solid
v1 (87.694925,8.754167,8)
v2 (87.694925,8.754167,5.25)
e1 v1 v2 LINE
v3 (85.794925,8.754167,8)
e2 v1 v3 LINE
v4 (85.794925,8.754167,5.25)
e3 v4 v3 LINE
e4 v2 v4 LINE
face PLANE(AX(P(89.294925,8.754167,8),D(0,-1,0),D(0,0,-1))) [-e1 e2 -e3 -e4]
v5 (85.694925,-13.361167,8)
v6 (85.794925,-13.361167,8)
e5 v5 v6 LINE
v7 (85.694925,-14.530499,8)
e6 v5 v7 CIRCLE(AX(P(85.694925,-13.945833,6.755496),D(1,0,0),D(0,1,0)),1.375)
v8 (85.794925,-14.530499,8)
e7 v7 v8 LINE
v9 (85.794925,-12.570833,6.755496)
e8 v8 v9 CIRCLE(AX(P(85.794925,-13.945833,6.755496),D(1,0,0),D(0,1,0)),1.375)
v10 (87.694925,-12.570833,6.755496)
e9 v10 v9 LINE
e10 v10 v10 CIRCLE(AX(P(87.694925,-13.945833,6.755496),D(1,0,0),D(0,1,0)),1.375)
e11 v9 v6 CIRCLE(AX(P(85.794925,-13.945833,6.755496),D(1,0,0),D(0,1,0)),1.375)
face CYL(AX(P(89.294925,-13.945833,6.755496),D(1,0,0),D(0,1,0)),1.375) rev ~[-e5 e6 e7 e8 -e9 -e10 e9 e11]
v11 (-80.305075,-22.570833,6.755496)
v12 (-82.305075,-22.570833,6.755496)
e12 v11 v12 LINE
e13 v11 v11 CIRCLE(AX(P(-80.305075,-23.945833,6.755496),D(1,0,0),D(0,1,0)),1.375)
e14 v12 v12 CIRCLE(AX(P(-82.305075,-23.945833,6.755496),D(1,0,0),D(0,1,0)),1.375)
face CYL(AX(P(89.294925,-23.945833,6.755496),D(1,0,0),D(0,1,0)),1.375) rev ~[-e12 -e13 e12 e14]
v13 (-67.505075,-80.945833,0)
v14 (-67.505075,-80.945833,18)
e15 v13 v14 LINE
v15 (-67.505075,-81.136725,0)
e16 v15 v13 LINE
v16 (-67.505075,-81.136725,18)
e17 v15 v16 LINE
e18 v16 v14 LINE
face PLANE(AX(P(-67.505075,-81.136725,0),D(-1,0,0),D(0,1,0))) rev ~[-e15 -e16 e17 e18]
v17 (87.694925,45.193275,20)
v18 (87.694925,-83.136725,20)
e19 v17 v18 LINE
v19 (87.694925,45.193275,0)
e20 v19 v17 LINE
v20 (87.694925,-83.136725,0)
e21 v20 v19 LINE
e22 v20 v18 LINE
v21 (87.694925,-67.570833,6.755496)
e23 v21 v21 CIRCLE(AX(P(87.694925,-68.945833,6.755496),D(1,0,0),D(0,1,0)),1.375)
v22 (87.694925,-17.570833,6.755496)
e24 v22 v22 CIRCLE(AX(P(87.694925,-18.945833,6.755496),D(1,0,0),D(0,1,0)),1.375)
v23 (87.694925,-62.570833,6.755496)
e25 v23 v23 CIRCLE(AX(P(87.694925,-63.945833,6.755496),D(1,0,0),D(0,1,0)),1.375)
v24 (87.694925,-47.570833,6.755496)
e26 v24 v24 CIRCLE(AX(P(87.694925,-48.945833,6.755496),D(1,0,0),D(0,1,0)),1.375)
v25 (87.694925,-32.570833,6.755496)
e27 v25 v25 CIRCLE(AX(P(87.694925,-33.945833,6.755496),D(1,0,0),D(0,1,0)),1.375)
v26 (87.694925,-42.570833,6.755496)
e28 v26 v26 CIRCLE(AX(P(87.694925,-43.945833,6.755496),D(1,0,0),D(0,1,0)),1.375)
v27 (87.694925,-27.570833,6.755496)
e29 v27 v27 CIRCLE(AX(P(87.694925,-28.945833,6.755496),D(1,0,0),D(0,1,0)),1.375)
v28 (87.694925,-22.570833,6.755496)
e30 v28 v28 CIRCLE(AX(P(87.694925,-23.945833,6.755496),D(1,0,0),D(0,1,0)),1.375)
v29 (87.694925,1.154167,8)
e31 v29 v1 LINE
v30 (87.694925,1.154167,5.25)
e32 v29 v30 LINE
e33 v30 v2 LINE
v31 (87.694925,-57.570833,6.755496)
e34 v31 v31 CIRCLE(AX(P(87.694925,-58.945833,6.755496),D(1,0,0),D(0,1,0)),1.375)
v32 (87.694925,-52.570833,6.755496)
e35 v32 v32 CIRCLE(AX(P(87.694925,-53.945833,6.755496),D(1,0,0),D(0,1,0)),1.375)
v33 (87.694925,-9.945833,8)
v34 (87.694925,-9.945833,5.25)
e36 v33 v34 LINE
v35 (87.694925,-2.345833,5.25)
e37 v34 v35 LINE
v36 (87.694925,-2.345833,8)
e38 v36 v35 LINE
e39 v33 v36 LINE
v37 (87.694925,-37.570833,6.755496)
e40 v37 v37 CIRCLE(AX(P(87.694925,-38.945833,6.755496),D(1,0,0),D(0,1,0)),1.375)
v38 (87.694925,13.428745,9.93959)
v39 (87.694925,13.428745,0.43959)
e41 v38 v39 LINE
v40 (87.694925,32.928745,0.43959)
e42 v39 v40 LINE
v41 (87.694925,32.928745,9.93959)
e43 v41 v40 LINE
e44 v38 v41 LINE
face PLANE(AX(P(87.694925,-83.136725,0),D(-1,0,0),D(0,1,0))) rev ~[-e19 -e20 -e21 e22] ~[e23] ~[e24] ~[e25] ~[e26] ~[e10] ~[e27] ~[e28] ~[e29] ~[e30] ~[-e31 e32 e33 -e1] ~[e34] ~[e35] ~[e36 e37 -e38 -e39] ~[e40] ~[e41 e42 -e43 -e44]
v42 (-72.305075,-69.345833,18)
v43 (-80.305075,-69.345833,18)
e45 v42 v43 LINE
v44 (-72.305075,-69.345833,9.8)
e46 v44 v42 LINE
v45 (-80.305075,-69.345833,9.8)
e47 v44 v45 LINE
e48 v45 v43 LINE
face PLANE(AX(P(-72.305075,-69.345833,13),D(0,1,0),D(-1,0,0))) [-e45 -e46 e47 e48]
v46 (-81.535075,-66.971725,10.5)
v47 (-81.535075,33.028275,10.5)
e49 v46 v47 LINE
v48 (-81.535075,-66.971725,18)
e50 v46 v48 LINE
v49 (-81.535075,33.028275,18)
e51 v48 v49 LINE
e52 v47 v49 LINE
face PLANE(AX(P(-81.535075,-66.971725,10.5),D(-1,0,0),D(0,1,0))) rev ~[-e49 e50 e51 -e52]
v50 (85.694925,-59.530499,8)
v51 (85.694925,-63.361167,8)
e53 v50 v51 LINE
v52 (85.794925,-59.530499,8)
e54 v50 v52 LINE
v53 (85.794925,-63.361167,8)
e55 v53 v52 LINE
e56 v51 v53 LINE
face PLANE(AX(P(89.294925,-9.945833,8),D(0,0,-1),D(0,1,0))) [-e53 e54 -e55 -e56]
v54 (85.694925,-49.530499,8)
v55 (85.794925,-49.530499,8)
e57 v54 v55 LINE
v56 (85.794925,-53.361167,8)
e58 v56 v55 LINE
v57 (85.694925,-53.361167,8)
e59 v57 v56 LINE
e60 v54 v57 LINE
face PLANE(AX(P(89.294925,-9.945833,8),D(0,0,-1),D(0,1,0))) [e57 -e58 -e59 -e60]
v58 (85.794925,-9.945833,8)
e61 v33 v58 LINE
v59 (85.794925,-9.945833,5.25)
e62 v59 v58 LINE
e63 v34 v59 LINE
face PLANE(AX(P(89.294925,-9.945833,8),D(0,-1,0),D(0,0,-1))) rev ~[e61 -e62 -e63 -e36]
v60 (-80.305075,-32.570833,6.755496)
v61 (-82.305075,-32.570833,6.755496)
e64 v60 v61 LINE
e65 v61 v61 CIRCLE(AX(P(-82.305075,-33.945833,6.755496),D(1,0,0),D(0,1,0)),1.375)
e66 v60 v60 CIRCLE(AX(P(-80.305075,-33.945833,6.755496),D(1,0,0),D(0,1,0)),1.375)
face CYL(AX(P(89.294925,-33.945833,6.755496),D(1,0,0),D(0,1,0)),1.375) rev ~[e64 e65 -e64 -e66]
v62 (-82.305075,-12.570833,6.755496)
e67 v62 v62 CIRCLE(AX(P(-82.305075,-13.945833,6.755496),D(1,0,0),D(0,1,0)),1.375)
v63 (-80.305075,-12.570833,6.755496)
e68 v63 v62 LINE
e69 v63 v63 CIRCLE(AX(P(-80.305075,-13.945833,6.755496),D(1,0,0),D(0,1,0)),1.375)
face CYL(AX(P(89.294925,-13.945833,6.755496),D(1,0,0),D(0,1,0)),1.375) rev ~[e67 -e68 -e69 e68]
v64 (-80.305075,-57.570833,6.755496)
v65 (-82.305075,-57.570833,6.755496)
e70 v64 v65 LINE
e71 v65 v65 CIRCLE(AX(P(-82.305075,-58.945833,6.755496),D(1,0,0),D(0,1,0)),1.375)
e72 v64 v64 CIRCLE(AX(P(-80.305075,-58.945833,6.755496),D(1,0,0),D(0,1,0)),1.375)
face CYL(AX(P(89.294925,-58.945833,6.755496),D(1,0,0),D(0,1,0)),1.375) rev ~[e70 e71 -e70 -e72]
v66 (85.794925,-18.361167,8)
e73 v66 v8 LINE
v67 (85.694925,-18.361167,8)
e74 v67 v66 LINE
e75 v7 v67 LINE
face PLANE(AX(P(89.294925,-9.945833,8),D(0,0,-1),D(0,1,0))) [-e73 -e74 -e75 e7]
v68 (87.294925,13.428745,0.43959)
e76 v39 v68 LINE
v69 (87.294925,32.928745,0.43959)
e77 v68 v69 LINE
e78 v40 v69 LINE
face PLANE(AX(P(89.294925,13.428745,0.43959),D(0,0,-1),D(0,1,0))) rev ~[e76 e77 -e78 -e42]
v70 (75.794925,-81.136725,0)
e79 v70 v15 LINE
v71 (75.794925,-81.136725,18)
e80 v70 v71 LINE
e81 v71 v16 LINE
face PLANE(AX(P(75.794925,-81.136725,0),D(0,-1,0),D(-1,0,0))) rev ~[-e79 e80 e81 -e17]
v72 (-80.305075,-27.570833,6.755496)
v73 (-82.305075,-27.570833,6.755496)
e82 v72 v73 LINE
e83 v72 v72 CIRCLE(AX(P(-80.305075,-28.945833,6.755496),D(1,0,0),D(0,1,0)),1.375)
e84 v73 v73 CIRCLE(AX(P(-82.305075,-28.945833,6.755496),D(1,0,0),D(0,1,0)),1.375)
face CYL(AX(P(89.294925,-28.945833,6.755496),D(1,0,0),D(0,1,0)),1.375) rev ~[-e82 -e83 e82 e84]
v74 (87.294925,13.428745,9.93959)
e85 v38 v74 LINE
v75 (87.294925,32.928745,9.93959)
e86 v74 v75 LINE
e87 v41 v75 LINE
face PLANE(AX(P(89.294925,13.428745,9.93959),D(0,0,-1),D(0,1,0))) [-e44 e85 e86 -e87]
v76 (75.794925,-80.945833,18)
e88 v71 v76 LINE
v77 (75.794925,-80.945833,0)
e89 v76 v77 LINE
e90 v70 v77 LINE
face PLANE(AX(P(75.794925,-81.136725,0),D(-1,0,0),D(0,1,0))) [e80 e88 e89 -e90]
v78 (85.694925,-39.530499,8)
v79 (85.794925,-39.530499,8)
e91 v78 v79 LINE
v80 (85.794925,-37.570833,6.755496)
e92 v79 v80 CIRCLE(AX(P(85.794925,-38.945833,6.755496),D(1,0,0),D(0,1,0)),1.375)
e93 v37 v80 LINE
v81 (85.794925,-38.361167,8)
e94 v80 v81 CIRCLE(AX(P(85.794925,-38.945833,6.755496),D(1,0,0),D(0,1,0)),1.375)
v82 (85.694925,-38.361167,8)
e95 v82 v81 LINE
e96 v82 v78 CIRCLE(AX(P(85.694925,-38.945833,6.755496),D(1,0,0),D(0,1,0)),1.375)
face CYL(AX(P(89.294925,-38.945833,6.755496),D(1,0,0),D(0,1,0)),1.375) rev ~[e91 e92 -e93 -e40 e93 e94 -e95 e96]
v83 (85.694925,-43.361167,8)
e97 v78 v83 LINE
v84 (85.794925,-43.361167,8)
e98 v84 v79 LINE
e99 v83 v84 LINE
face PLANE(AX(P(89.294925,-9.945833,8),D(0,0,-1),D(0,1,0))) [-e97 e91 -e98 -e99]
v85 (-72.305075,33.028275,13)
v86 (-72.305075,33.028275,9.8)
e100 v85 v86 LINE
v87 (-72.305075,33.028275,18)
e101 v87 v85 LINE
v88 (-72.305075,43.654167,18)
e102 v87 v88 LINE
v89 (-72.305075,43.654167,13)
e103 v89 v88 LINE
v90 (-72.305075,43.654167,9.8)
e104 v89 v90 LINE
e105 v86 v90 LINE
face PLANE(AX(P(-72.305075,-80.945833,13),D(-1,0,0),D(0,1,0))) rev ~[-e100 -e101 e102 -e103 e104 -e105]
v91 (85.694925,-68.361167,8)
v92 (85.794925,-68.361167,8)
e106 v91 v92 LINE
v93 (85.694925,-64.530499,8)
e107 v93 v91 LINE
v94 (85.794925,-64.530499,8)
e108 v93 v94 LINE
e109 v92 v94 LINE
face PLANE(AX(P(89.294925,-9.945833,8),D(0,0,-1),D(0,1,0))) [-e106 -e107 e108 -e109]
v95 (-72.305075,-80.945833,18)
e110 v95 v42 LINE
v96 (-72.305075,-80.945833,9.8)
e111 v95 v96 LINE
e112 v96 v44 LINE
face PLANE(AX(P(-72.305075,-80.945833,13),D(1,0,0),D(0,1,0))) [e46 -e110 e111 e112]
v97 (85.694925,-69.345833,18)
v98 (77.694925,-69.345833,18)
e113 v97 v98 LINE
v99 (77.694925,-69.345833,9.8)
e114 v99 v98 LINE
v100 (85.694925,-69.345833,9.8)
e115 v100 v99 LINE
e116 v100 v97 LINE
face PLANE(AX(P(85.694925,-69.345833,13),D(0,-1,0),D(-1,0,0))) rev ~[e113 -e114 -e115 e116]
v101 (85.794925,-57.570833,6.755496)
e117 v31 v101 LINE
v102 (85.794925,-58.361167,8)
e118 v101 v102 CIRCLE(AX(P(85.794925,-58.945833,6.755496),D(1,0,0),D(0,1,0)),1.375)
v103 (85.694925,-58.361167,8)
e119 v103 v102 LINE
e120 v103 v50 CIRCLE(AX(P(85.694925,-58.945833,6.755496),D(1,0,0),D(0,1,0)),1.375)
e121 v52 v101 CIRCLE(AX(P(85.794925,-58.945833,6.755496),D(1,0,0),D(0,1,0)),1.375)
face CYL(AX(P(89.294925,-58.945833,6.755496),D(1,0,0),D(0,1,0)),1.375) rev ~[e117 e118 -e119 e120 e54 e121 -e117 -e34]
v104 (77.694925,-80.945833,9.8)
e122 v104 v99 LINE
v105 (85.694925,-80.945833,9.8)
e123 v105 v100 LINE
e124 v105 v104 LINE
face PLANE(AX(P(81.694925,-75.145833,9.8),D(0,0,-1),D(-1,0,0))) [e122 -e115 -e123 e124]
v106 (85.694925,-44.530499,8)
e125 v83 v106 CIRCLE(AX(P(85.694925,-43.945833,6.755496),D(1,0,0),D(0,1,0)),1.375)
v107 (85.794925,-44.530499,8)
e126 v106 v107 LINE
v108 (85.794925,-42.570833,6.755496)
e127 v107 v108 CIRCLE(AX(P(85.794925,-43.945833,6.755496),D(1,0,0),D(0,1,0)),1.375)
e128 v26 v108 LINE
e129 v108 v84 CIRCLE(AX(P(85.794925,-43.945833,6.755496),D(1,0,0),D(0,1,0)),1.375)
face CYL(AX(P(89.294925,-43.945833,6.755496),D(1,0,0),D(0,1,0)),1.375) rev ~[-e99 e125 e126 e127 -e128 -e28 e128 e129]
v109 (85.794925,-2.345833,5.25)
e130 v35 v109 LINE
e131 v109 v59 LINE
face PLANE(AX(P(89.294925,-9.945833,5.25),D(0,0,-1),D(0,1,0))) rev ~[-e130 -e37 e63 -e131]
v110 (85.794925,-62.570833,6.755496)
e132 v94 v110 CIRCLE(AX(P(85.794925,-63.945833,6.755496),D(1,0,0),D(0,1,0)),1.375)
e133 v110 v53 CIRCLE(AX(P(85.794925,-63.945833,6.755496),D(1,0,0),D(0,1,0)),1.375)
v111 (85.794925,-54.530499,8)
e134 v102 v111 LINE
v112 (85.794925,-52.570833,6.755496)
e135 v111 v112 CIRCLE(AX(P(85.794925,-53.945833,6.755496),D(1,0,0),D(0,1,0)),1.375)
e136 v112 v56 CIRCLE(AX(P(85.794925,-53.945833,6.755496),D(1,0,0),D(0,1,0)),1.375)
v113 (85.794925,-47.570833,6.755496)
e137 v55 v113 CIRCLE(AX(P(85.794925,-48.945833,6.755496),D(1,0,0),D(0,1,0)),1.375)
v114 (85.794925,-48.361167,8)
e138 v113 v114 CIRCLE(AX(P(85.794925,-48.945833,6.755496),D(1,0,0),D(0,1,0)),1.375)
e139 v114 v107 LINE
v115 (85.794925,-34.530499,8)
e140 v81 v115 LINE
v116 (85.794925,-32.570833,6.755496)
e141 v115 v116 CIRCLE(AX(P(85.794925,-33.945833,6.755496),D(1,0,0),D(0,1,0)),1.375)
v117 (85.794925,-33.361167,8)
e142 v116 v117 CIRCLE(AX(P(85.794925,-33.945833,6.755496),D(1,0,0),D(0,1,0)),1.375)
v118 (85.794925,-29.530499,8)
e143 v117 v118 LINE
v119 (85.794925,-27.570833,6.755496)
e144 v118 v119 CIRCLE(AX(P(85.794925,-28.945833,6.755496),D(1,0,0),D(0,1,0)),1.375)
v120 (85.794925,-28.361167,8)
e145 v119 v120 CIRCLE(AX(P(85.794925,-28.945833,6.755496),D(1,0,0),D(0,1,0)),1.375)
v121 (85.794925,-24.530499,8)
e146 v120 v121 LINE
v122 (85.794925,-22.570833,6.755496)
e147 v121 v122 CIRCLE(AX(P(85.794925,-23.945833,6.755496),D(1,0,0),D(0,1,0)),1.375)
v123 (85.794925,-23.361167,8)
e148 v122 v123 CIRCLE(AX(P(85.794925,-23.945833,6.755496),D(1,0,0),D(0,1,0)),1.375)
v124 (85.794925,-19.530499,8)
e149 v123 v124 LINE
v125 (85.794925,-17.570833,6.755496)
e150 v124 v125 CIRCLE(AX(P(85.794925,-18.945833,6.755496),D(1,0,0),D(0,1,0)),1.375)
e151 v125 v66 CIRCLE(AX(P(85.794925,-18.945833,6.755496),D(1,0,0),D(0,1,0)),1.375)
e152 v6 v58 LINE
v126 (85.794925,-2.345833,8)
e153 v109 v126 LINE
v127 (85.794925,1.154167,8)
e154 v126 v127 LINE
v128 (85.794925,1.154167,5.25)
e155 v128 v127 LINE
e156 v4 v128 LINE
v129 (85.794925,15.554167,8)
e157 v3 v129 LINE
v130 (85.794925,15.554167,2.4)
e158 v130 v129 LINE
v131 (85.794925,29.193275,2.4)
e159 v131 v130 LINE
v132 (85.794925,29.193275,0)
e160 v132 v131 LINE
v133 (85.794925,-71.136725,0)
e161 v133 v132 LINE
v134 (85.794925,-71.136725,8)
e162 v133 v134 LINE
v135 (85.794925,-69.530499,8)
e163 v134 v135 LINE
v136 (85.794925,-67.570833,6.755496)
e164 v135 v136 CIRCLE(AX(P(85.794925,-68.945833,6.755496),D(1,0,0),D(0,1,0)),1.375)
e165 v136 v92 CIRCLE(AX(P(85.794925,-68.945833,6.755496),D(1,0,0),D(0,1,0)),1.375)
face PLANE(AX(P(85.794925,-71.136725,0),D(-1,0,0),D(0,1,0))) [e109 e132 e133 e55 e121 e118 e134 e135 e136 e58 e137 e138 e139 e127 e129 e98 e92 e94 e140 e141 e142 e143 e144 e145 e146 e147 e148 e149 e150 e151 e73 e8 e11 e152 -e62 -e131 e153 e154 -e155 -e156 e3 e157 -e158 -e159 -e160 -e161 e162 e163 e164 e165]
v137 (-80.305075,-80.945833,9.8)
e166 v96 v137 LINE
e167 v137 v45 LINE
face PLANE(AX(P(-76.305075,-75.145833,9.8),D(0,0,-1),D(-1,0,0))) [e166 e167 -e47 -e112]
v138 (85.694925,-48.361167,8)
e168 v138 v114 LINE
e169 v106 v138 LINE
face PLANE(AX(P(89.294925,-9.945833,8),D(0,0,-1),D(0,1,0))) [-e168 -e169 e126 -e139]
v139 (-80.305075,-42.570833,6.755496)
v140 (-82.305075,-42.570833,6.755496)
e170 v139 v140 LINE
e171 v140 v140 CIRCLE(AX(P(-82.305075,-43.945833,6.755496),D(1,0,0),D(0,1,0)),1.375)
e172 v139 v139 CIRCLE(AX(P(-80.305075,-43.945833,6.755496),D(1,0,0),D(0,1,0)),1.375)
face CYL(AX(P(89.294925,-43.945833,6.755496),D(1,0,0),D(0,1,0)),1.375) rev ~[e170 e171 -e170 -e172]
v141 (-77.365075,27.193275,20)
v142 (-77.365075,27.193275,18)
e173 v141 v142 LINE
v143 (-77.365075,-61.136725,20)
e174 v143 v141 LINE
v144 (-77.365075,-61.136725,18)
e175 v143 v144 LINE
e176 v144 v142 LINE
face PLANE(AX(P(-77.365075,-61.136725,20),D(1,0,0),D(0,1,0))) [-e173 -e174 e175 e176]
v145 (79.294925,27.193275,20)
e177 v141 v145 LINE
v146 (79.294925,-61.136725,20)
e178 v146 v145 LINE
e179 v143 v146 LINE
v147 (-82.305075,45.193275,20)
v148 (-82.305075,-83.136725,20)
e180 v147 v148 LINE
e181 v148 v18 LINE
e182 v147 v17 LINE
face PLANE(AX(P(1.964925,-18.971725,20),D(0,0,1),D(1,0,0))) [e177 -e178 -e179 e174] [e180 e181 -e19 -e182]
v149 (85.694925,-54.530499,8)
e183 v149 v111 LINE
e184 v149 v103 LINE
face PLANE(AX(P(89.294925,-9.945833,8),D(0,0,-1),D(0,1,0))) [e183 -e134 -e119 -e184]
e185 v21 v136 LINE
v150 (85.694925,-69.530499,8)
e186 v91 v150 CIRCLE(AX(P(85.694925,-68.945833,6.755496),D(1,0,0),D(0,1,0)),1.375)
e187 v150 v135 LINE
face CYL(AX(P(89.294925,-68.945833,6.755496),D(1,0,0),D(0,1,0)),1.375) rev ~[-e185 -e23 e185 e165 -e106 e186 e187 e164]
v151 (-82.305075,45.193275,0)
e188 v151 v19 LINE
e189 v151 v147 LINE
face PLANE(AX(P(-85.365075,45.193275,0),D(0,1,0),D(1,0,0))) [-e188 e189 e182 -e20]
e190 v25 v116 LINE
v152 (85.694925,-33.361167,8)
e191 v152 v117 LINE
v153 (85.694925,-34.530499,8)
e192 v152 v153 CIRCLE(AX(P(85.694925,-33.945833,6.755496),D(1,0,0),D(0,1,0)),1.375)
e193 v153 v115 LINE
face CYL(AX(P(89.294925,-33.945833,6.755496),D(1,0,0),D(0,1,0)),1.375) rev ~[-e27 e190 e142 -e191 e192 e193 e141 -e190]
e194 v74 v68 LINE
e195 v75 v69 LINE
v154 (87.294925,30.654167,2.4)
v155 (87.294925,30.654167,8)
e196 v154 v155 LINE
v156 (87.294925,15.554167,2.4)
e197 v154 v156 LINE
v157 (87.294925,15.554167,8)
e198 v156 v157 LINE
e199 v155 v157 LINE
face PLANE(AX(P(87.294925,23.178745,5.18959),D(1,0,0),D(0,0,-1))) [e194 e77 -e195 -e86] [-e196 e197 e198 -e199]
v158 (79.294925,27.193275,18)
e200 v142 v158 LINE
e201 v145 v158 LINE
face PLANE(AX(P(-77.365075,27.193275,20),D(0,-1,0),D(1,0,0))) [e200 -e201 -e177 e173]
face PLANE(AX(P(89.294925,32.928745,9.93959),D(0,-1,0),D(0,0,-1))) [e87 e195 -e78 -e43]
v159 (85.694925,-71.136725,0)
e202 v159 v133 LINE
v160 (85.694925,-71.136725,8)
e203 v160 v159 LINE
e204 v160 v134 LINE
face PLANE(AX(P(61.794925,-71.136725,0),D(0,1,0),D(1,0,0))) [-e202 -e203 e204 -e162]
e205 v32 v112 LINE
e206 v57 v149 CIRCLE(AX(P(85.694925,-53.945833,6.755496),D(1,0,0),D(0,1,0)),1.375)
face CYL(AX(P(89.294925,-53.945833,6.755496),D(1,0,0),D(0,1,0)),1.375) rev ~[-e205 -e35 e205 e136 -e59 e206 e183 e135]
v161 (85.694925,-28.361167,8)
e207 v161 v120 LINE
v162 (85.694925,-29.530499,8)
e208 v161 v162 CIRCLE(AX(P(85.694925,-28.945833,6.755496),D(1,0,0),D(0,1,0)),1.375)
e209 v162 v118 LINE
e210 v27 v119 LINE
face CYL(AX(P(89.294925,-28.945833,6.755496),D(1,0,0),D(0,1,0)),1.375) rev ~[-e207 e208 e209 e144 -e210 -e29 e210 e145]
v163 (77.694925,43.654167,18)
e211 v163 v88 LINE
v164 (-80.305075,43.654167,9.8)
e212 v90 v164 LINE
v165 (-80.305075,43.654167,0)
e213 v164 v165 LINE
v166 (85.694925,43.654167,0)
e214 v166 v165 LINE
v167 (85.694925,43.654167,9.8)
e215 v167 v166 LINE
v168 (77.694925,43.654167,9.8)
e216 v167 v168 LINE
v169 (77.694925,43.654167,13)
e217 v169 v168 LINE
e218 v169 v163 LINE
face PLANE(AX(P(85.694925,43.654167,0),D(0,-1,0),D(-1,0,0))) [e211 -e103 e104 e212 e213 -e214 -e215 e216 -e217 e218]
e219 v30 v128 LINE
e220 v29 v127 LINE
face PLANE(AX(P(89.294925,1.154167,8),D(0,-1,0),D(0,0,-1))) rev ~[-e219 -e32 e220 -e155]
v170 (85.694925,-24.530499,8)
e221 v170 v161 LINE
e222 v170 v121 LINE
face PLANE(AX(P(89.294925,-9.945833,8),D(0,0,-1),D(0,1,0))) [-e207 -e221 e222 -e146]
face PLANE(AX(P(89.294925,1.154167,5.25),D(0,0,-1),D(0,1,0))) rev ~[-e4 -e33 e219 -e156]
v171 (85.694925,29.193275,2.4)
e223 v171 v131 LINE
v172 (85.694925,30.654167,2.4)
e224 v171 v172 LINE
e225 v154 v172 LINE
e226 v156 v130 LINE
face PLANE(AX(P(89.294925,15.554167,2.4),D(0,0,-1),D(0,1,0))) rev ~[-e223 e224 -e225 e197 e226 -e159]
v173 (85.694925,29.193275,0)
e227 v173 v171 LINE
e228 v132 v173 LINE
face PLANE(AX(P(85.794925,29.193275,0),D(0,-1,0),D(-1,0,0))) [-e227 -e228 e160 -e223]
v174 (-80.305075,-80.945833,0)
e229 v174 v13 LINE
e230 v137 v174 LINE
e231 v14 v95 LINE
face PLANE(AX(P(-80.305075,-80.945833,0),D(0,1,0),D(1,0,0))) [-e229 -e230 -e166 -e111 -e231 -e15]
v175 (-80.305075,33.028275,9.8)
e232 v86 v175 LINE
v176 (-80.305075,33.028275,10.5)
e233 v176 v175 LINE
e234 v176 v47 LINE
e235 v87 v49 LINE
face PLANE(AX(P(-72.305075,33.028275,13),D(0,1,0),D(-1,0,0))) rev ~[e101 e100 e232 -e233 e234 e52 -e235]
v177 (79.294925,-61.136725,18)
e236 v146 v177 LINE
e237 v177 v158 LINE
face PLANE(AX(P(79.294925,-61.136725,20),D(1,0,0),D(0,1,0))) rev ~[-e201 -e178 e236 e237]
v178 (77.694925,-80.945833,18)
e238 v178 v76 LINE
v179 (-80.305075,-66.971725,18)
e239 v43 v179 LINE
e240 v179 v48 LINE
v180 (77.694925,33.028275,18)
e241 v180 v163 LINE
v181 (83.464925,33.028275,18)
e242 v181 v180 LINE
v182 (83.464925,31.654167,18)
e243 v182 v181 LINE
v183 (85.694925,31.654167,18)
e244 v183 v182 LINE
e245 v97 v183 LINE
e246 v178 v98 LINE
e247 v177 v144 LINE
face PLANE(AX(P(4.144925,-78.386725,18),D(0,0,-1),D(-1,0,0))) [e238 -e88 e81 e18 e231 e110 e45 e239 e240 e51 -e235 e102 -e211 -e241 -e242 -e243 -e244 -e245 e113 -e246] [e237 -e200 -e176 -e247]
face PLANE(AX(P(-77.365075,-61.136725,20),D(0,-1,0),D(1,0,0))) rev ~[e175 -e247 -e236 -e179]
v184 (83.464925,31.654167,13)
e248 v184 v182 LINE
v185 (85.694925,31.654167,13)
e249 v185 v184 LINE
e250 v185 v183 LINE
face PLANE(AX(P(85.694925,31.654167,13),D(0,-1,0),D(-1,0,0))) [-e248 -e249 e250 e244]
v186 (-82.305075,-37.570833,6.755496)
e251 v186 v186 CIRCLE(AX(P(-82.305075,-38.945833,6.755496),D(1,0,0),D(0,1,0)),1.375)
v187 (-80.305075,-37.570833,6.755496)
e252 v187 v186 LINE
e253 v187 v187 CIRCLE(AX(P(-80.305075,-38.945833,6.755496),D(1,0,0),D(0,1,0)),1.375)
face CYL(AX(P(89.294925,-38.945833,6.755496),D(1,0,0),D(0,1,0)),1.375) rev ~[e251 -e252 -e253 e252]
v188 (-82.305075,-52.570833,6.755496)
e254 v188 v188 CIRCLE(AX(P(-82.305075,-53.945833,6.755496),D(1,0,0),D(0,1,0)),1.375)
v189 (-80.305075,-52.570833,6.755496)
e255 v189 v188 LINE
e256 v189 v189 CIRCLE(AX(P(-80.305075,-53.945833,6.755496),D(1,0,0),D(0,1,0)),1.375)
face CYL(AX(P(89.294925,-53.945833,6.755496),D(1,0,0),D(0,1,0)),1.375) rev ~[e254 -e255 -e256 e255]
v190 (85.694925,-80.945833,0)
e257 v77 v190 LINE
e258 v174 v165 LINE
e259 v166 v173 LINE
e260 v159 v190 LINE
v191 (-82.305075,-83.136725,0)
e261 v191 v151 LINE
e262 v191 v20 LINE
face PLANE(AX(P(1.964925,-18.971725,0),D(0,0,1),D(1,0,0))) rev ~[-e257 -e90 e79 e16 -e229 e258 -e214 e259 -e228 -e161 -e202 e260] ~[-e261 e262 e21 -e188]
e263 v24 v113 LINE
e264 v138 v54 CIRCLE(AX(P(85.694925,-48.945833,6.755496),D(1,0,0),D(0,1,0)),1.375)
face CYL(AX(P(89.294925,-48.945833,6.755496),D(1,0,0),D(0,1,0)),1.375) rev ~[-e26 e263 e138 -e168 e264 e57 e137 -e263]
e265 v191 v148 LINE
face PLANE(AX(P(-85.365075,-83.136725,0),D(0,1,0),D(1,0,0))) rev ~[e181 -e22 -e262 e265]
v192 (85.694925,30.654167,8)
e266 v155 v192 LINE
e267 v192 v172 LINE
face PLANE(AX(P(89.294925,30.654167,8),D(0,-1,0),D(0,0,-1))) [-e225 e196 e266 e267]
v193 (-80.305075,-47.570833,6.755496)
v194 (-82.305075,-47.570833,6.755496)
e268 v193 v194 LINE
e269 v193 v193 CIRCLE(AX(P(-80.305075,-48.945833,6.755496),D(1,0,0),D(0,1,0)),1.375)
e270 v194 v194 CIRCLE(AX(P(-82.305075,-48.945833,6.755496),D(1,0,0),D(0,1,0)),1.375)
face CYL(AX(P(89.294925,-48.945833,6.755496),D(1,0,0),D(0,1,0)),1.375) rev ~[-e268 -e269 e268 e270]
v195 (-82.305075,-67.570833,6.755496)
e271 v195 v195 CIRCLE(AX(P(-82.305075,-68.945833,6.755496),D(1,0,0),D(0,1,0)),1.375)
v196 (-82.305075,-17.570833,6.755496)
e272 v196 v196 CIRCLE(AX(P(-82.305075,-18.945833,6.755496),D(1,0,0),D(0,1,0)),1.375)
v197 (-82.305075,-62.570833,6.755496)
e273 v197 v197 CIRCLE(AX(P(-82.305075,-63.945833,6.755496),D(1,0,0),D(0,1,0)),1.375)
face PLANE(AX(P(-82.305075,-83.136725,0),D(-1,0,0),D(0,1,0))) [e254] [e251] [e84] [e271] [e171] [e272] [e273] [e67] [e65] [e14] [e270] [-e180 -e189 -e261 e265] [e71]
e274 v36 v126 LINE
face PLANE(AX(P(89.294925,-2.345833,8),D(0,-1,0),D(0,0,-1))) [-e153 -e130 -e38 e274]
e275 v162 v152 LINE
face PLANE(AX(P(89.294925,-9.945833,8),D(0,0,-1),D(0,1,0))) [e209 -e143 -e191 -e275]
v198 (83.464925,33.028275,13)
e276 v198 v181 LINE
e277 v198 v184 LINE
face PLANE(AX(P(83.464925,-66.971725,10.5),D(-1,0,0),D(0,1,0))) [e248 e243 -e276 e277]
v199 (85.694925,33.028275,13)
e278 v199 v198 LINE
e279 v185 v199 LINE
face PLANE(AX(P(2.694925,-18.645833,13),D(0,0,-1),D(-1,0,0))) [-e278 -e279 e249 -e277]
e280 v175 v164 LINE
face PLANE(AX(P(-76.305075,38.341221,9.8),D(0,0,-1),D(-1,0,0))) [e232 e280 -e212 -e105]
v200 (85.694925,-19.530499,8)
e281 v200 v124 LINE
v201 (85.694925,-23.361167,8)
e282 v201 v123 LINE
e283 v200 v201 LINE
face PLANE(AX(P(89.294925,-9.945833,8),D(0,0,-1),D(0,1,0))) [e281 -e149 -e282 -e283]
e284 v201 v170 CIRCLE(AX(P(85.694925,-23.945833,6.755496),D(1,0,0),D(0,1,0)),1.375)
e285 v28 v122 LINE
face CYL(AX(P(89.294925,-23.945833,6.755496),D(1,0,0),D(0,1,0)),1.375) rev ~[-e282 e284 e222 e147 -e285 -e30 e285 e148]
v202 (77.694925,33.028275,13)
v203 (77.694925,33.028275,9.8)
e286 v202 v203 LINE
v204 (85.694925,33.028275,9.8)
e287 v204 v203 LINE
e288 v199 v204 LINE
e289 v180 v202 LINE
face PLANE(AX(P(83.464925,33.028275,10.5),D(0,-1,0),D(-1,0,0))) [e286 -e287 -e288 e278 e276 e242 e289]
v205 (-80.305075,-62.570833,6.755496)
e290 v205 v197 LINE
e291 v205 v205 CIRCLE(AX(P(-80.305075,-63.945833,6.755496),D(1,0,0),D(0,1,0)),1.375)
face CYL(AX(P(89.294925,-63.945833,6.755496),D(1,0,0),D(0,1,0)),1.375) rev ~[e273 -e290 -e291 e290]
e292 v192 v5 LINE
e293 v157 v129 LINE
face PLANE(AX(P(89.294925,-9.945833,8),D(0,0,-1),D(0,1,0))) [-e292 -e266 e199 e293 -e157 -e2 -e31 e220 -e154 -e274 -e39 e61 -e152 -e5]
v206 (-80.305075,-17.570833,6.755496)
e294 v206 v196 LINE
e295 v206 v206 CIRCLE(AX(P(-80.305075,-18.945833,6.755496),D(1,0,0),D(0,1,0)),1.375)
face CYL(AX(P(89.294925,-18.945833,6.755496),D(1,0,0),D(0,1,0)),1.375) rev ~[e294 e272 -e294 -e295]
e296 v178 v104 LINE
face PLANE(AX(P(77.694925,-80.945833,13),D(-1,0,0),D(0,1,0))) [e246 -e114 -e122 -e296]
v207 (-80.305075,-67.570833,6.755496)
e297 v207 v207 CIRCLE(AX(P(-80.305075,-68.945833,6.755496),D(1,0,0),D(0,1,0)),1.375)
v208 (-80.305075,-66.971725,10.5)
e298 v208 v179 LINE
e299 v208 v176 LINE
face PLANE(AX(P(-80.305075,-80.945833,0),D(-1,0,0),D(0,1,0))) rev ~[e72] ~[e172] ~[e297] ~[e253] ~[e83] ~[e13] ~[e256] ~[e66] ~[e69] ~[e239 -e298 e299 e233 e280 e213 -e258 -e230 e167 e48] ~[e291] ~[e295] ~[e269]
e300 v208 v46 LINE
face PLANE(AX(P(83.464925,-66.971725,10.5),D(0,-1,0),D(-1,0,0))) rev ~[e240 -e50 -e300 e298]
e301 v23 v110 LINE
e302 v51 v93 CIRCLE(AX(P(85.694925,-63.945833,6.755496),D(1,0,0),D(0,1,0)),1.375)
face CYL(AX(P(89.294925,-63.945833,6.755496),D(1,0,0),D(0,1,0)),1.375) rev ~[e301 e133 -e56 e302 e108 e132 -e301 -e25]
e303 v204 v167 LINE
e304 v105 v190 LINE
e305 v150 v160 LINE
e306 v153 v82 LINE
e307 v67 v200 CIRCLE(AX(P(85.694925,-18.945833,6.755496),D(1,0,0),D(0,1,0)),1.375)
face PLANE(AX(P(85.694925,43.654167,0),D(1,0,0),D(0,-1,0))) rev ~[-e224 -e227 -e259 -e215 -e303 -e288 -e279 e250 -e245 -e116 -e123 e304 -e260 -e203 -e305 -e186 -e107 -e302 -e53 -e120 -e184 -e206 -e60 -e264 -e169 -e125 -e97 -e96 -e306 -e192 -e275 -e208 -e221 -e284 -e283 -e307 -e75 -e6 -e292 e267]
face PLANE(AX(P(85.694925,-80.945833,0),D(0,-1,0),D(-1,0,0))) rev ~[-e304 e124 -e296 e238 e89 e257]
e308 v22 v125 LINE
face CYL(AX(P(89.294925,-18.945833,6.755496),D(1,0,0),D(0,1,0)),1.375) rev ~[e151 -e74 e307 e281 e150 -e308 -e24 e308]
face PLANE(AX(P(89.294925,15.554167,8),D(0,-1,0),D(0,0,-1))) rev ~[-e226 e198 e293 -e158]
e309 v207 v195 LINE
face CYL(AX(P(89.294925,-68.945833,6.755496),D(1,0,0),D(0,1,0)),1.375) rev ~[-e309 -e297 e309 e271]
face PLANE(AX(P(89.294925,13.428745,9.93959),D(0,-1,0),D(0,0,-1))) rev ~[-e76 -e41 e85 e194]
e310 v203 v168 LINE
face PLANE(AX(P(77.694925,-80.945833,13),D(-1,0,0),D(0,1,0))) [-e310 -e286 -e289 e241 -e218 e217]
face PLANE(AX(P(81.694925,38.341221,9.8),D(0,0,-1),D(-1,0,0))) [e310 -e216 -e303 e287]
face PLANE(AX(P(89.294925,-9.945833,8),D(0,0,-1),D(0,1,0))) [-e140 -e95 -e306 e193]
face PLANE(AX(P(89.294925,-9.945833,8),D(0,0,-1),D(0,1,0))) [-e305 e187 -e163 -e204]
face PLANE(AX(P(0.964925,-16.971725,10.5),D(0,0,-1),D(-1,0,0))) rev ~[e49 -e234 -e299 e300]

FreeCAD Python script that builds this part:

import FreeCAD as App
import Part
import Sketcher
Q = App.Units.Quantity


def add_polygon(sketch, points):
    """Adds a closed chain of lines whose ends are joined by coincident constraints."""
    first, n = sketch.GeometryCount, len(points)
    for a, b in zip(points, points[1:] + points[:1]):
        sketch.addGeometry(Part.LineSegment(App.Vector(*a, 0), App.Vector(*b, 0)), False)
    for i in range(n):
        sketch.addConstraint(Sketcher.Constraint("Coincident", first + i, 2, first + (i + 1) % n, 1))

doc = App.newDocument("Part")
body = doc.addObject("PartDesign::Body", "Body")

sketch1 = body.newObject("Sketcher::SketchObject", "Sketch")
sketch1.AttachmentSupport = (doc.getObject("XY_Plane"), [""])
sketch1.MapMode = "FlatFace"
add_polygon(sketch1, [(-85, 45), (-85, -83), (89, -83), (89, 45)])
sketch1.addConstraint([
    Sketcher.Constraint("Vertical", 0),
    Sketcher.Constraint("Horizontal", 1),
    Sketcher.Constraint("Vertical", 2),
    Sketcher.Constraint("Horizontal", 3),
    Sketcher.Constraint("DistanceX", 1, 1, 1, 2, Q("174.66 mm")),
    Sketcher.Constraint("DistanceY", 0, 2, 0, 1, Q("128.33 mm")),
    Sketcher.Constraint("DistanceX", 0, 2, -1, 1, Q("85.365075 mm")),
    Sketcher.Constraint("DistanceY", 0, 2, -1, 1, Q("83.136725 mm")),
])
pad1 = body.newObject("PartDesign::Pad", "Pad")
pad1.Profile = sketch1
pad1.Length = 20

sketch2 = body.newObject("Sketcher::SketchObject", "Sketch001")
sketch2.AttachmentSupport = (doc.getObject("XY_Plane"), [""])
sketch2.MapMode = "FlatFace"
add_polygon(sketch2, [(-78.7, 29.2), (85.8, 29.2), (85.8, -71.1), (61.8, -71.1), (61.8, -74.1), (16.8, -74.1), (16.8, -71.1), (-78.7, -71.1)])
sketch2.addConstraint([
    Sketcher.Constraint("Horizontal", 0),
    Sketcher.Constraint("Vertical", 1),
    Sketcher.Constraint("Horizontal", 2),
    Sketcher.Constraint("Vertical", 3),
    Sketcher.Constraint("Horizontal", 4),
    Sketcher.Constraint("Vertical", 5),
    Sketcher.Constraint("Horizontal", 6),
    Sketcher.Constraint("Vertical", 7),
    Sketcher.Constraint("Horizontal", 2, 2, 5, 2),
    Sketcher.Constraint("DistanceX", 2, 2, 2, 1, Q("24 mm")),
    Sketcher.Constraint("DistanceX", 4, 2, 4, 1, Q("45 mm")),
    Sketcher.Constraint("DistanceY", 3, 2, 3, 1, Q("3 mm")),
    Sketcher.Constraint("DistanceX", 0, 1, 0, 2, Q("164.51 mm")),
    Sketcher.Constraint("DistanceY", 1, 2, 1, 1, Q("100.33 mm")),
    Sketcher.Constraint("DistanceX", -1, 1, 0, 2, Q("85.794925 mm")),
    Sketcher.Constraint("DistanceY", -1, 1, 0, 2, Q("29.193275 mm")),
])
pocket1 = body.newObject("PartDesign::Pocket", "Pocket")
pocket1.Profile = sketch2
pocket1.Length = 8
pocket1.Reversed = True

sketch3 = body.newObject("Sketcher::SketchObject", "Sketch002")
sketch3.AttachmentSupport = (doc.getObject("XY_Plane"), [""])
sketch3.MapMode = "FlatFace"
add_polygon(sketch3, [(-72, 35), (77, 35), (77, 44), (86, 44), (86, -81), (78, -81), (78, -72), (-70, -72), (-70, -81), (-80, -81), (-80, 44), (-72, 44)])
sketch3.addConstraint([
    Sketcher.Constraint("Horizontal", 0),
    Sketcher.Constraint("Vertical", 1),
    Sketcher.Constraint("Horizontal", 2),
    Sketcher.Constraint("Vertical", 3),
    Sketcher.Constraint("Horizontal", 4),
    Sketcher.Constraint("Vertical", 5),
    Sketcher.Constraint("Horizontal", 6),
    Sketcher.Constraint("Vertical", 7),
    Sketcher.Constraint("Horizontal", 8),
    Sketcher.Constraint("Vertical", 9),
    Sketcher.Constraint("Horizontal", 10),
    Sketcher.Constraint("Vertical", 11),
    Sketcher.Constraint("Horizontal", 4, 2, 7, 2),
    Sketcher.Constraint("Horizontal", 2, 2, 9, 2),
    Sketcher.Constraint("Equal", 2, 10),
    Sketcher.Constraint("Equal", 10, 1),
    Sketcher.Constraint("Equal", 1, 5),
    Sketcher.Constraint("DistanceX", 0, 1, 0, 2, Q("148.4 mm")),
    Sketcher.Constraint("DistanceX", 2, 1, 2, 2, Q("8.8 mm")),
    Sketcher.Constraint("DistanceX", 4, 2, 4, 1, Q("7.9 mm")),
    Sketcher.Constraint("DistanceX", 6, 2, 6, 1, Q("147.3 mm")),
    Sketcher.Constraint("DistanceY", 3, 2, 3, 1, Q("124.6 mm")),
    Sketcher.Constraint("DistanceX", -1, 1, 0, 2, Q("76.894925 mm")),
    Sketcher.Constraint("DistanceY", -1, 1, 0, 2, Q("34.854167 mm")),
])
pocket2 = body.newObject("PartDesign::Pocket", "Pocket001")
pocket2.Profile = sketch3
pocket2.Length = 10.5
pocket2.Reversed = True

sketch4 = body.newObject("Sketcher::SketchObject", "Sketch003")
sketch4.AttachmentSupport = (doc.getObject("YZ_Plane"), [""])
sketch4.MapMode = "FlatFace"
sketch4.AttachmentOffset = App.Placement(App.Vector(0, 0, 89.294925), App.Rotation())
add_polygon(sketch4, [(30.7, 8), (15.6, 8), (15.6, 2.4), (30.7, 2.4)])
add_polygon(sketch4, [(8.8, 8), (1.2, 8), (1.2, 5.2), (8.8, 5.2)])
add_polygon(sketch4, [(-2.3, 8), (-9.9, 8), (-9.9, 5.2), (-2.3, 5.2)])
sketch4.addConstraint([
    Sketcher.Constraint("Horizontal", 0),
    Sketcher.Constraint("Vertical", 1),
    Sketcher.Constraint("Horizontal", 2),
    Sketcher.Constraint("Vertical", 3),
    Sketcher.Constraint("Horizontal", 4),
    Sketcher.Constraint("Vertical", 5),
    Sketcher.Constraint("Horizontal", 6),
    Sketcher.Constraint("Vertical", 7),
    Sketcher.Constraint("Horizontal", 8),
    Sketcher.Constraint("Vertical", 9),
    Sketcher.Constraint("Horizontal", 10),
    Sketcher.Constraint("Vertical", 11),
    Sketcher.Constraint("Horizontal", 3, 2, 4, 2),
    Sketcher.Constraint("Horizontal", 7, 2, 8, 2),
    Sketcher.Constraint("Horizontal", 6, 2, 9, 2),
    Sketcher.Constraint("Equal", 6, 8),
    Sketcher.Constraint("DistanceX", 0, 2, 0, 1, Q("15.1 mm")),
    Sketcher.Constraint("DistanceX", 4, 2, 4, 1, Q("7.6 mm")),
    Sketcher.Constraint("DistanceY", 1, 2, 1, 1, Q("5.6 mm")),
    Sketcher.Constraint("DistanceY", -1, 1, 0, 2, Q("8 mm")),
    Sketcher.Constraint("DistanceY", 5, 2, 5, 1, Q("2.75 mm")),
    Sketcher.Constraint("DistanceX", 4, 2, 0, 2, Q("14.4 mm")),
    Sketcher.Constraint("DistanceX", 8, 2, 4, 2, Q("11.1 mm")),
    Sketcher.Constraint("DistanceX", -1, 1, 0, 2, Q("15.554167 mm")),
])
pocket3 = body.newObject("PartDesign::Pocket", "Pocket002")
pocket3.Profile = sketch4
pocket3.Length = 8

sketch5 = body.newObject("Sketcher::SketchObject", "Sketch004")
sketch5.AttachmentSupport = (doc.getObject("YZ_Plane"), [""])
sketch5.MapMode = "FlatFace"
sketch5.AttachmentOffset = App.Placement(App.Vector(0, 0, 89.294925), App.Rotation())
add_polygon(sketch5, [(33, 10), (13, 10), (13, 0), (33, 0)])
sketch5.addConstraint([
    Sketcher.Constraint("Horizontal", 0),
    Sketcher.Constraint("Vertical", 1),
    Sketcher.Constraint("Horizontal", 2),
    Sketcher.Constraint("Vertical", 3),
    Sketcher.Constraint("DistanceX", 0, 2, 0, 1, Q("19.5 mm")),
    Sketcher.Constraint("DistanceY", 1, 2, 1, 1, Q("9.5 mm")),
    Sketcher.Constraint("DistanceY", -1, 1, 0, 2, Q("9.93959 mm")),
    Sketcher.Constraint("DistanceX", -1, 1, 0, 2, Q("13.428745 mm")),
])
pocket4 = body.newObject("PartDesign::Pocket", "Pocket003")
pocket4.Profile = sketch5
pocket4.Length = 2

sketch6 = body.newObject("Sketcher::SketchObject", "Sketch005")
sketch6.AttachmentSupport = (doc.getObject("YZ_Plane"), [""])
sketch6.MapMode = "FlatFace"
sketch6.AttachmentOffset = App.Placement(App.Vector(0, 0, 89.294925), App.Rotation())
sketch6.addGeometry([
    Part.Circle(App.Vector(-13.9, 6.8, 0), App.Vector(0, 0, 1), 1.4),
    Part.Circle(App.Vector(-18.9, 6.8, 0), App.Vector(0, 0, 1), 1.4),
    Part.Circle(App.Vector(-23.9, 6.8, 0), App.Vector(0, 0, 1), 1.4),
    Part.Circle(App.Vector(-28.9, 6.8, 0), App.Vector(0, 0, 1), 1.4),
    Part.Circle(App.Vector(-33.9, 6.8, 0), App.Vector(0, 0, 1), 1.4),
    Part.Circle(App.Vector(-38.9, 6.8, 0), App.Vector(0, 0, 1), 1.4),
    Part.Circle(App.Vector(-43.9, 6.8, 0), App.Vector(0, 0, 1), 1.4),
    Part.Circle(App.Vector(-48.9, 6.8, 0), App.Vector(0, 0, 1), 1.4),
    Part.Circle(App.Vector(-53.9, 6.8, 0), App.Vector(0, 0, 1), 1.4),
    Part.Circle(App.Vector(-58.9, 6.8, 0), App.Vector(0, 0, 1), 1.4),
    Part.Circle(App.Vector(-63.9, 6.8, 0), App.Vector(0, 0, 1), 1.4),
    Part.Circle(App.Vector(-68.9, 6.8, 0), App.Vector(0, 0, 1), 1.4),
], False)
sketch6.addConstraint([
    Sketcher.Constraint("Equal", 0, 1),
    Sketcher.Constraint("Equal", 1, 2),
    Sketcher.Constraint("Equal", 2, 3),
    Sketcher.Constraint("Equal", 3, 4),
    Sketcher.Constraint("Equal", 4, 5),
    Sketcher.Constraint("Equal", 5, 6),
    Sketcher.Constraint("Equal", 6, 7),
    Sketcher.Constraint("Equal", 7, 8),
    Sketcher.Constraint("Equal", 8, 9),
    Sketcher.Constraint("Equal", 9, 10),
    Sketcher.Constraint("Equal", 10, 11),
    Sketcher.Constraint("Horizontal", 0, 3, 1, 3),
    Sketcher.Constraint("Horizontal", 1, 3, 2, 3),
    Sketcher.Constraint("Horizontal", 2, 3, 3, 3),
    Sketcher.Constraint("Horizontal", 3, 3, 4, 3),
    Sketcher.Constraint("Horizontal", 4, 3, 5, 3),
    Sketcher.Constraint("Horizontal", 5, 3, 6, 3),
    Sketcher.Constraint("Horizontal", 6, 3, 7, 3),
    Sketcher.Constraint("Horizontal", 7, 3, 8, 3),
    Sketcher.Constraint("Horizontal", 8, 3, 9, 3),
    Sketcher.Constraint("Horizontal", 9, 3, 10, 3),
    Sketcher.Constraint("Horizontal", 10, 3, 11, 3),
    Sketcher.Constraint("Diameter", 0, Q("2.75 mm")),
    Sketcher.Constraint("DistanceX", 1, 3, 0, 3, Q("5 mm")),
    Sketcher.Constraint("DistanceX", 2, 3, 1, 3, Q("5 mm")),
    Sketcher.Constraint("DistanceX", 3, 3, 2, 3, Q("5 mm")),
    Sketcher.Constraint("DistanceX", 4, 3, 3, 3, Q("5 mm")),
    Sketcher.Constraint("DistanceX", 5, 3, 4, 3, Q("5 mm")),
    Sketcher.Constraint("DistanceX", 6, 3, 5, 3, Q("5 mm")),
    Sketcher.Constraint("DistanceX", 7, 3, 6, 3, Q("5 mm")),
    Sketcher.Constraint("DistanceX", 8, 3, 7, 3, Q("5 mm")),
    Sketcher.Constraint("DistanceX", 9, 3, 8, 3, Q("5 mm")),
    Sketcher.Constraint("DistanceX", 10, 3, 9, 3, Q("5 mm")),
    Sketcher.Constraint("DistanceX", 11, 3, 10, 3, Q("5 mm")),
    Sketcher.Constraint("DistanceX", 0, 3, -1, 1, Q("13.945833 mm")),
    Sketcher.Constraint("DistanceY", -1, 1, 0, 3, Q("6.755496 mm")),
])
pocket5 = body.newObject("PartDesign::Pocket", "Pocket004")
pocket5.Profile = sketch6
pocket5.Type = "ThroughAll"

sketch7 = body.newObject("Sketcher::SketchObject", "Sketch006")
sketch7.AttachmentSupport = (doc.getObject("XY_Plane"), [""])
sketch7.MapMode = "FlatFace"
add_polygon(sketch7, [(76, -76), (76, -81), (-68, -81), (-68, -76)])
add_polygon(sketch7, [(75, 43), (75, 37), (-70, 37), (-70, 43)])
sketch7.addConstraint([
    Sketcher.Constraint("Vertical", 0),
    Sketcher.Constraint("Horizontal", 1),
    Sketcher.Constraint("Vertical", 2),
    Sketcher.Constraint("Horizontal", 3),
    Sketcher.Constraint("Vertical", 4),
    Sketcher.Constraint("Horizontal", 5),
    Sketcher.Constraint("Vertical", 6),
    Sketcher.Constraint("Horizontal", 7),
    Sketcher.Constraint("DistanceX", 1, 2, 1, 1, Q("143.3 mm")),
    Sketcher.Constraint("DistanceX", 5, 2, 5, 1, Q("144.4 mm")),
    Sketcher.Constraint("DistanceY", 0, 2, 0, 1, Q("5.5 mm")),
    Sketcher.Constraint("DistanceX", 5, 2, 2, 2, Q("2 mm")),
    Sketcher.Constraint("DistanceY", 2, 2, 6, 2, Q("118.83 mm")),
    Sketcher.Constraint("DistanceY", 4, 2, 4, 1, Q("6.339108 mm")),
    Sketcher.Constraint("DistanceX", -1, 1, 0, 2, Q("75.794925 mm")),
    Sketcher.Constraint("DistanceY", 0, 2, -1, 1, Q("81.136725 mm")),
])
pocket6 = body.newObject("PartDesign::Pocket", "Pocket005")
pocket6.Profile = sketch7
pocket6.Length = 18
pocket6.Reversed = True

sketch8 = body.newObject("Sketcher::SketchObject", "Sketch007")
sketch8.AttachmentSupport = (doc.getObject("XY_Plane"), [""])
sketch8.MapMode = "FlatFace"
sketch8.AttachmentOffset = App.Placement(App.Vector(0, 0, 20), App.Rotation())
add_polygon(sketch8, [(-77, 27), (-77, -61), (79, -61), (79, 27)])
sketch8.addConstraint([
    Sketcher.Constraint("Vertical", 0),
    Sketcher.Constraint("Horizontal", 1),
    Sketcher.Constraint("Vertical", 2),
    Sketcher.Constraint("Horizontal", 3),
    Sketcher.Constraint("DistanceX", 1, 1, 1, 2, Q("156.66 mm")),
    Sketcher.Constraint("DistanceY", 0, 2, 0, 1, Q("88.33 mm")),
    Sketcher.Constraint("DistanceX", 0, 2, -1, 1, Q("77.365075 mm")),
    Sketcher.Constraint("DistanceY", 0, 2, -1, 1, Q("61.136725 mm")),
])
pocket7 = body.newObject("PartDesign::Pocket", "Pocket006")
pocket7.Profile = sketch8
pocket7.Type = "ThroughAll"

sketch9 = body.newObject("Sketcher::SketchObject", "Sketch008")
sketch9.AttachmentSupport = (doc.getObject("XY_Plane"), [""])
sketch9.MapMode = "FlatFace"
sketch9.AttachmentOffset = App.Placement(App.Vector(0, 0, 10.5), App.Rotation())
add_polygon(sketch9, [(83, 33), (83, -67), (-82, -67), (-82, 33)])
sketch9.addConstraint([
    Sketcher.Constraint("Vertical", 0),
    Sketcher.Constraint("Horizontal", 1),
    Sketcher.Constraint("Vertical", 2),
    Sketcher.Constraint("Horizontal", 3),
    Sketcher.Constraint("DistanceX", 1, 2, 1, 1, Q("165 mm")),
    Sketcher.Constraint("DistanceY", 0, 2, 0, 1, Q("100 mm")),
    Sketcher.Constraint("DistanceX", -1, 1, 0, 2, Q("83.464925 mm")),
    Sketcher.Constraint("DistanceY", 0, 2, -1, 1, Q("66.971725 mm")),
])
pocket8 = body.newObject("PartDesign::Pocket", "Pocket007")
pocket8.Profile = sketch9
pocket8.Length = 7.5
pocket8.Reversed = True

sketch10 = body.newObject("Sketcher::SketchObject", "Sketch009")
sketch10.AttachmentSupport = (doc.getObject("XY_Plane"), [""])
sketch10.MapMode = "FlatFace"
add_polygon(sketch10, [(62, -67), (62, -74), (17, -74), (17, -67)])
sketch10.addConstraint([
    Sketcher.Constraint("Vertical", 0),
    Sketcher.Constraint("Horizontal", 1),
    Sketcher.Constraint("Vertical", 2),
    Sketcher.Constraint("Horizontal", 3),
    Sketcher.Constraint("DistanceY", 0, 2, 0, 1, Q("7.165 mm")),
    Sketcher.Constraint("DistanceX", 1, 2, 1, 1, Q("44.991562 mm")),
    Sketcher.Constraint("DistanceX", -1, 1, 0, 2, Q("61.786487 mm")),
    Sketcher.Constraint("DistanceY", 0, 2, -1, 1, Q("74.136725 mm")),
])
pocket9 = body.newObject("PartDesign::Pocket", "Pocket008")
pocket9.Profile = sketch10
pocket9.Length = 18
pocket9.Reversed = True

sketch11 = body.newObject("Sketcher::SketchObject", "Sketch010")
sketch11.AttachmentSupport = (doc.getObject("XY_Plane"), [""])
sketch11.MapMode = "FlatFace"
add_polygon(sketch11, [(86, 44), (86, -81), (-80, -81), (-80, 44)])
sketch11.addConstraint([
    Sketcher.Constraint("Vertical", 0),
    Sketcher.Constraint("Horizontal", 1),
    Sketcher.Constraint("Vertical", 2),
    Sketcher.Constraint("Horizontal", 3),
    Sketcher.Constraint("DistanceX", 1, 2, 1, 1, Q("166 mm")),
    Sketcher.Constraint("DistanceY", 0, 2, 0, 1, Q("124.6 mm")),
    Sketcher.Constraint("DistanceX", -1, 1, 0, 2, Q("85.694925 mm")),
    Sketcher.Constraint("DistanceY", 0, 2, -1, 1, Q("80.945833 mm")),
])
pocket10 = body.newObject("PartDesign::Pocket", "Pocket009")
pocket10.Profile = sketch11
pocket10.Length = 13
pocket10.Reversed = True

sketch12 = body.newObject("Sketcher::SketchObject", "Sketch011")
sketch12.AttachmentSupport = (doc.getObject("XY_Plane"), [""])
sketch12.MapMode = "FlatFace"
sketch12.AttachmentOffset = App.Placement(App.Vector(0, 0, 13), App.Rotation())
add_polygon(sketch12, [(78, 44), (78, -81), (-72, -81), (-72, 44)])
sketch12.addConstraint([
    Sketcher.Constraint("Vertical", 0),
    Sketcher.Constraint("Horizontal", 1),
    Sketcher.Constraint("Vertical", 2),
    Sketcher.Constraint("Horizontal", 3),
    Sketcher.Constraint("DistanceX", 1, 2, 1, 1, Q("150 mm")),
    Sketcher.Constraint("DistanceY", 0, 2, 0, 1, Q("124.6 mm")),
    Sketcher.Constraint("DistanceX", -1, 1, 0, 2, Q("77.694925 mm")),
    Sketcher.Constraint("DistanceY", 0, 2, -1, 1, Q("80.945833 mm")),
])
pocket11 = body.newObject("PartDesign::Pocket", "Pocket010")
pocket11.Profile = sketch12
pocket11.Length = 5
pocket11.Reversed = True

sketch13 = body.newObject("Sketcher::SketchObject", "Sketch012")
sketch13.AttachmentSupport = (doc.getObject("XY_Plane"), [""])
sketch13.MapMode = "FlatFace"
sketch13.AttachmentOffset = App.Placement(App.Vector(0, 0, 13), App.Rotation())
add_polygon(sketch13, [(-72, 32), (-72, -69), (-80, -69), (-80, 32)])
add_polygon(sketch13, [(86, 32), (86, -69), (78, -69), (78, 32)])
sketch13.addConstraint([
    Sketcher.Constraint("Vertical", 0),
    Sketcher.Constraint("Horizontal", 1),
    Sketcher.Constraint("Vertical", 2),
    Sketcher.Constraint("Horizontal", 3),
    Sketcher.Constraint("Vertical", 4),
    Sketcher.Constraint("Horizontal", 5),
    Sketcher.Constraint("Vertical", 6),
    Sketcher.Constraint("Horizontal", 7),
    Sketcher.Constraint("Horizontal", 1, 2, 4, 2),
    Sketcher.Constraint("Horizontal", 3, 2, 6, 2),
    Sketcher.Constraint("Equal", 3, 5),
    Sketcher.Constraint("DistanceX", 1, 2, 1, 1, Q("8 mm")),
    Sketcher.Constraint("DistanceY", 0, 2, 0, 1, Q("101 mm")),
    Sketcher.Constraint("DistanceX", 0, 2, 4, 2, Q("158 mm")),
    Sketcher.Constraint("DistanceX", 0, 2, -1, 1, Q("72.305075 mm")),
    Sketcher.Constraint("DistanceY", 0, 2, -1, 1, Q("69.345833 mm")),
])
pocket12 = body.newObject("PartDesign::Pocket", "Pocket011")
pocket12.Profile = sketch13
pocket12.Length = 5
pocket12.Reversed = True

sketch14 = body.newObject("Sketcher::SketchObject", "Sketch013")
sketch14.AttachmentSupport = (doc.getObject("XY_Plane"), [""])
sketch14.MapMode = "FlatFace"
add_polygon(sketch14, [(-82.3, 45.2), (-82.3, -83.1), (-85.4, -83.1), (-85.4, 45.2)])
add_polygon(sketch14, [(89.3, 45.2), (89.3, -83.1), (87.7, -83.1), (87.7, 45.2)])
sketch14.addConstraint([
    Sketcher.Constraint("Vertical", 0),
    Sketcher.Constraint("Horizontal", 1),
    Sketcher.Constraint("Vertical", 2),
    Sketcher.Constraint("Horizontal", 3),
    Sketcher.Constraint("Vertical", 4),
    Sketcher.Constraint("Horizontal", 5),
    Sketcher.Constraint("Vertical", 6),
    Sketcher.Constraint("Horizontal", 7),
    Sketcher.Constraint("Horizontal", 1, 2, 4, 2),
    Sketcher.Constraint("Horizontal", 3, 2, 6, 2),
    Sketcher.Constraint("DistanceX", 5, 2, 5, 1, Q("1.6 mm")),
    Sketcher.Constraint("DistanceX", 0, 2, 5, 2, Q("170 mm")),
    Sketcher.Constraint("DistanceX", 1, 2, 1, 1, Q("3.06 mm")),
    Sketcher.Constraint("DistanceY", 0, 2, 0, 1, Q("128.33 mm")),
    Sketcher.Constraint("DistanceX", 0, 2, -1, 1, Q("82.305075 mm")),
    Sketcher.Constraint("DistanceY", 0, 2, -1, 1, Q("83.136725 mm")),
])
pocket13 = body.newObject("PartDesign::Pocket", "Pocket012")
pocket13.Profile = sketch14
pocket13.Type = "ThroughAll"
pocket13.Reversed = True

sketch15 = body.newObject("Sketcher::SketchObject", "Sketch014")
sketch15.AttachmentSupport = (doc.getObject("XY_Plane"), [""])
sketch15.MapMode = "FlatFace"
sketch15.AttachmentOffset = App.Placement(App.Vector(0, 0, 13), App.Rotation())
add_polygon(sketch15, [(-72, -69), (-72, -81), (-80, -81), (-80, -69)])
add_polygon(sketch15, [(86, -69), (86, -81), (78, -81), (78, -69)])
add_polygon(sketch15, [(-72, 44), (-72, 33), (-80, 33), (-80, 44)])
add_polygon(sketch15, [(86, 44), (86, 33), (78, 33), (78, 44)])
sketch15.addConstraint([
    Sketcher.Constraint("Vertical", 0),
    Sketcher.Constraint("Horizontal", 1),
    Sketcher.Constraint("Vertical", 2),
    Sketcher.Constraint("Horizontal", 3),
    Sketcher.Constraint("Vertical", 4),
    Sketcher.Constraint("Horizontal", 5),
    Sketcher.Constraint("Vertical", 6),
    Sketcher.Constraint("Horizontal", 7),
    Sketcher.Constraint("Vertical", 8),
    Sketcher.Constraint("Horizontal", 9),
    Sketcher.Constraint("Vertical", 10),
    Sketcher.Constraint("Horizontal", 11),
    Sketcher.Constraint("Vertical", 12),
    Sketcher.Constraint("Horizontal", 13),
    Sketcher.Constraint("Vertical", 14),
    Sketcher.Constraint("Horizontal", 15),
    Sketcher.Constraint("Horizontal", 1, 2, 4, 2),
    Sketcher.Constraint("Horizontal", 3, 2, 6, 2),
    Sketcher.Constraint("Horizontal", 9, 2, 12, 2),
    Sketcher.Constraint("Horizontal", 11, 2, 14, 2),
    Sketcher.Constraint("Vertical", 3, 2, 8, 2),
    Sketcher.Constraint("Vertical", 2, 2, 9, 2),
    Sketcher.Constraint("Vertical", 7, 2, 12, 2),
    Sketcher.Constraint("Vertical", 6, 2, 13, 2),
    Sketcher.Constraint("Equal", 3, 5),
    Sketcher.Constraint("DistanceX", 1, 2, 1, 1, Q("8 mm")),
    Sketcher.Constraint("DistanceY", 0, 2, 0, 1, Q("11.6 mm")),
    Sketcher.Constraint("DistanceX", 0, 2, 4, 2, Q("158 mm")),
    Sketcher.Constraint("DistanceY", 2, 2, 10, 2, Q("113 mm")),
    Sketcher.Constraint("DistanceY", 8, 2, 8, 1, Q("10.625892 mm")),
    Sketcher.Constraint("DistanceX", 0, 2, -1, 1, Q("72.305075 mm")),
    Sketcher.Constraint("DistanceY", 0, 2, -1, 1, Q("80.945833 mm")),
])
pad2 = body.newObject("PartDesign::Pad", "Pad001")
pad2.Profile = sketch15
pad2.Length = 3.2
pad2.Reversed = True

doc.recompute()
